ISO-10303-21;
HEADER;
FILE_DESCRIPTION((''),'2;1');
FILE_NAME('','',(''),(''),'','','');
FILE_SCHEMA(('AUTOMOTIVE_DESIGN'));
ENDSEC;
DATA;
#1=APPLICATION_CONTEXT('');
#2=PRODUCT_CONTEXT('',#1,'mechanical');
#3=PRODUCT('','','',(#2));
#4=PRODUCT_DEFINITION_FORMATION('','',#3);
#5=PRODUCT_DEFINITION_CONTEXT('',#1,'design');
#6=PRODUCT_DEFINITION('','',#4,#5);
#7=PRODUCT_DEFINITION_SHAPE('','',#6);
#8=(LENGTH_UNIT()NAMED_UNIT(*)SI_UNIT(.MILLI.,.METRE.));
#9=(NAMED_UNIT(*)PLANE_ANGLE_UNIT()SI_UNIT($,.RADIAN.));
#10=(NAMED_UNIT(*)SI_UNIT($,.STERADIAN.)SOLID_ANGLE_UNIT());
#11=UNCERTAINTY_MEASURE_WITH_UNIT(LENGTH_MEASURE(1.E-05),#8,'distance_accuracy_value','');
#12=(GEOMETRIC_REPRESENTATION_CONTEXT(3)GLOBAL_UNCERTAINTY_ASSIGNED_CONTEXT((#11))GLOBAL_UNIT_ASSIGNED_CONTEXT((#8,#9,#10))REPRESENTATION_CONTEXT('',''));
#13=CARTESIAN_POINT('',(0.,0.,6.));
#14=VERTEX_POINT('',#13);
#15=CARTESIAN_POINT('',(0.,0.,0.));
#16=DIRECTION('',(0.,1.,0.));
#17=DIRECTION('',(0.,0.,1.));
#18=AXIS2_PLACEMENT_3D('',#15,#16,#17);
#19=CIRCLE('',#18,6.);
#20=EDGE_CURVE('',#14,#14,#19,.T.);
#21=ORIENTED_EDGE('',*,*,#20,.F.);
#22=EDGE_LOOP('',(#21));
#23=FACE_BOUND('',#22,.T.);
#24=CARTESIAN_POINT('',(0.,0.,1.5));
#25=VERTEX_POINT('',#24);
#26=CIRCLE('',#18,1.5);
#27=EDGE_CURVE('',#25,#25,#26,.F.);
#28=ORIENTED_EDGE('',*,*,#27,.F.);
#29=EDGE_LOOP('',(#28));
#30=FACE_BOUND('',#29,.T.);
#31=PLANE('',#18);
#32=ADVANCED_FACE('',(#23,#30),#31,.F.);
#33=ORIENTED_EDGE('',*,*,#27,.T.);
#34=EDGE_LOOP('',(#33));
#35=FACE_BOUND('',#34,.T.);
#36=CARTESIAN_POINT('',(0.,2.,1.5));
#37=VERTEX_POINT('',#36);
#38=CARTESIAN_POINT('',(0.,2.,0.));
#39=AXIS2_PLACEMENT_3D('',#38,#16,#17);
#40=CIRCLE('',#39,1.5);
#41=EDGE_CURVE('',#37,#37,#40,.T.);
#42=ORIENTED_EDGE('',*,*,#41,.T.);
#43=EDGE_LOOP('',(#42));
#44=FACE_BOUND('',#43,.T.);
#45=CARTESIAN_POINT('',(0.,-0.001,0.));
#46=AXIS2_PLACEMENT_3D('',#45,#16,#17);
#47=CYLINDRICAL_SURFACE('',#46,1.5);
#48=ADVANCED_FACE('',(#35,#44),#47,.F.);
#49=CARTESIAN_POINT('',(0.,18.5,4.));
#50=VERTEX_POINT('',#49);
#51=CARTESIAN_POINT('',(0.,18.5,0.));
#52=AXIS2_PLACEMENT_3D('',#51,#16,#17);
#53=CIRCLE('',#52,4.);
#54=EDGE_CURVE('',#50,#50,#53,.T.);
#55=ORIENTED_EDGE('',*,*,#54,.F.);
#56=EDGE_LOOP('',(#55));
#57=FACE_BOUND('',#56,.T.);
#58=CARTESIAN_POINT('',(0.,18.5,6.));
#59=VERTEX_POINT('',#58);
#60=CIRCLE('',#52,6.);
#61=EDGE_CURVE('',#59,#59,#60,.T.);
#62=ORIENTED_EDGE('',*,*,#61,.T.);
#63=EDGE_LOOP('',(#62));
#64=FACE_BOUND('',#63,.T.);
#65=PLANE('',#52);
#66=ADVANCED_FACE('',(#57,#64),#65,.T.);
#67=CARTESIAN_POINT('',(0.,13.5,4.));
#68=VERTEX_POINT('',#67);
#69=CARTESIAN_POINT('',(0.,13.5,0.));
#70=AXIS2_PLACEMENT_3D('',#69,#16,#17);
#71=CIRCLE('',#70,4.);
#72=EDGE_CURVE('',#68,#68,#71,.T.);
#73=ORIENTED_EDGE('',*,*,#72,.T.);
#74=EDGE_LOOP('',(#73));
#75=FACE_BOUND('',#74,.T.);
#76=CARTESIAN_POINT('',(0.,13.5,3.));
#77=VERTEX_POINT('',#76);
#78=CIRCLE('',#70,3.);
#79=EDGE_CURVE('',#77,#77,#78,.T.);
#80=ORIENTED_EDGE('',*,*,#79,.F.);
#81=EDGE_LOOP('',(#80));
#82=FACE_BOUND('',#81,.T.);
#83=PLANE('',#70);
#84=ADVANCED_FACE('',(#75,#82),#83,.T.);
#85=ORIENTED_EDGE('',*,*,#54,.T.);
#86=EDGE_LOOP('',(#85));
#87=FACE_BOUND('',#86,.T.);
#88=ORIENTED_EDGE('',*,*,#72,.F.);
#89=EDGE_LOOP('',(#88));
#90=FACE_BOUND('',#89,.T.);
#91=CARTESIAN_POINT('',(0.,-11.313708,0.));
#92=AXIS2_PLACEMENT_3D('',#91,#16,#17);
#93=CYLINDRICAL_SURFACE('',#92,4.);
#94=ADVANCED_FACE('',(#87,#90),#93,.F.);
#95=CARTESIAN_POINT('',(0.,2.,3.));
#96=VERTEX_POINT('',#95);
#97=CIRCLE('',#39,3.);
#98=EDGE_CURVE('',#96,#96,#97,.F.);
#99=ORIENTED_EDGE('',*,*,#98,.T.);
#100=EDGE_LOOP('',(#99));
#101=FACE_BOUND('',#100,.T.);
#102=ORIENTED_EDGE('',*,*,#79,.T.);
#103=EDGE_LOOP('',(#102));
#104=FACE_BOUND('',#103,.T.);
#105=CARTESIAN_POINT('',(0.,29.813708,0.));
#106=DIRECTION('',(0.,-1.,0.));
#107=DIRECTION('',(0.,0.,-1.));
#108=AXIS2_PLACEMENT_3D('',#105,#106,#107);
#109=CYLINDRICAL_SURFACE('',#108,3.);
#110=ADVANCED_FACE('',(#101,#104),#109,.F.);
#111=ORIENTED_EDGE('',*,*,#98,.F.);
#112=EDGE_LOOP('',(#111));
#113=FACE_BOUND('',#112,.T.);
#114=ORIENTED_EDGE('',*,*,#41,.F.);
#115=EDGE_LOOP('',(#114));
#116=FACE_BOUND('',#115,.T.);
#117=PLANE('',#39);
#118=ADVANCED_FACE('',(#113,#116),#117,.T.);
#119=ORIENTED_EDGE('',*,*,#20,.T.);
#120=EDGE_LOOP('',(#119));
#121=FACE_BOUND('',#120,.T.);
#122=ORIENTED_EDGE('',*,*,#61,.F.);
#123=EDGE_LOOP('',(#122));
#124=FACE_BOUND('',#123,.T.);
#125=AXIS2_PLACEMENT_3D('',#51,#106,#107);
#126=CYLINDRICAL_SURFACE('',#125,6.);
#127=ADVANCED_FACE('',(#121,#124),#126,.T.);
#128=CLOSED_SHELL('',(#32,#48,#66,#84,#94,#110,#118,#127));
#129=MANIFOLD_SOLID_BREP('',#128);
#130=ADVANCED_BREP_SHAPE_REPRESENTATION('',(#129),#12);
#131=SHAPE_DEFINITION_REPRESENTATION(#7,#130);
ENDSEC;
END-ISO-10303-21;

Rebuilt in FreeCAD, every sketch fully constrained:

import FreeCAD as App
import Part
import Sketcher

doc = App.newDocument("Part")
body = doc.addObject("PartDesign::Body", "Body")

# Sketch on XZ plane
sketch1 = doc.addObject("Sketcher::SketchObject", "Sketch")
body.addObject(sketch1)
sketch1.AttachmentSupport = (doc.XZ_Plane, [""])
sketch1.MapMode = "FlatFace"
sketch1.addGeometry(Part.Circle(App.Vector(0, 0, 0), App.Vector(0, 0, 1), 6), False)
sketch1.addConstraint([
    Sketcher.Constraint("Coincident", 0, 3, -1, 1),
    Sketcher.Constraint("Diameter", 0, 12.0),
])
pad1 = doc.addObject("PartDesign::Pad", "Pad")
body.addObject(pad1)
pad1.Profile = sketch1
pad1.Length = 18.5
pad1.Reversed = True

# Sketch on XZ plane
sketch2 = doc.addObject("Sketcher::SketchObject", "Sketch001")
body.addObject(sketch2)
sketch2.AttachmentSupport = (doc.XZ_Plane, [""])
sketch2.MapMode = "FlatFace"
sketch2.AttachmentOffset = App.Placement(App.Vector(0, 0, -18.5), App.Rotation())
sketch2.addGeometry(Part.Circle(App.Vector(0, 0, 0), App.Vector(0, 0, 1), 4), False)
sketch2.addConstraint([
    Sketcher.Constraint("Coincident", 0, 3, -1, 1),
    Sketcher.Constraint("Diameter", 0, 8.0),
])
pocket1 = doc.addObject("PartDesign::Pocket", "Pocket")
body.addObject(pocket1)
pocket1.Profile = sketch2
pocket1.Length = 16.5
pocket1.Reversed = True

# Sketch on XZ plane
sketch3 = doc.addObject("Sketcher::SketchObject", "Sketch002")
body.addObject(sketch3)
sketch3.AttachmentSupport = (doc.XZ_Plane, [""])
sketch3.MapMode = "FlatFace"
sketch3.AttachmentOffset = App.Placement(App.Vector(0, 0, -2), App.Rotation())
sketch3.addGeometry(Part.Circle(App.Vector(0, 0, 0), App.Vector(0, 0, 1), 1.5), False)
sketch3.addConstraint([
    Sketcher.Constraint("Coincident", 0, 3, -1, 1),
    Sketcher.Constraint("Diameter", 0, 3.0),
])
pocket2 = doc.addObject("PartDesign::Pocket", "Pocket001")
body.addObject(pocket2)
pocket2.Profile = sketch3
pocket2.Type = "UpToFirst"
pocket2.Reversed = True

# Sketch on XZ plane
sketch4 = doc.addObject("Sketcher::SketchObject", "Sketch003")
body.addObject(sketch4)
sketch4.AttachmentSupport = (doc.XZ_Plane, [""])
sketch4.MapMode = "FlatFace"
sketch4.AttachmentOffset = App.Placement(App.Vector(0, 0, -2), App.Rotation())
sketch4.addGeometry([
    Part.Circle(App.Vector(0, 0, 0), App.Vector(0, 0, 1), 4),
    Part.Circle(App.Vector(0, 0, 0), App.Vector(0, 0, 1), 3),
], False)
sketch4.addConstraint([
    Sketcher.Constraint("Coincident", 0, 3, -1, 1),
    Sketcher.Constraint("Coincident", 1, 3, -1, 1),
    Sketcher.Constraint("Diameter", 0, 8.0),
    Sketcher.Constraint("Diameter", 1, 6.0),
])
pad2 = doc.addObject("PartDesign::Pad", "Pad001")
body.addObject(pad2)
pad2.Profile = sketch4
pad2.Length = 11.5
pad2.Reversed = True

doc.recompute()
